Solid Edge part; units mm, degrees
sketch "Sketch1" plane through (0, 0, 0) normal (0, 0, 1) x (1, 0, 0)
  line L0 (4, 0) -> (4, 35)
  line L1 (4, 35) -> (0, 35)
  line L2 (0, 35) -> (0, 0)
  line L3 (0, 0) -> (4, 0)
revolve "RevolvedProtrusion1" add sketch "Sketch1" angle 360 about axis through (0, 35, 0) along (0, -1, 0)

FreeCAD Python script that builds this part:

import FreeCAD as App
import Part
import Sketcher

V = App.Vector


def add_polygon(sketch, points):
    """Adds a closed chain of lines whose ends are joined by coincident constraints."""
    first, n = sketch.GeometryCount, len(points)
    for a, b in zip(points, points[1:] + points[:1]):
        sketch.addGeometry(Part.LineSegment(App.Vector(*a, 0), App.Vector(*b, 0)), False)
    for i in range(n):
        sketch.addConstraint(Sketcher.Constraint("Coincident", first + i, 2, first + (i + 1) % n, 1))

doc = App.newDocument("Part")
body = doc.addObject("PartDesign::Body", "Body")

# Sketch on XY plane
sketch1 = body.newObject("Sketcher::SketchObject", "Sketch")
sketch1.AttachmentSupport = (doc.getObject("XY_Plane"), [""])
sketch1.MapMode = "FlatFace"
add_polygon(sketch1, [(0, 0), (4, 0), (4, 35), (0, 35)])  # lines 0-3
sketch1.addConstraint([
    Sketcher.Constraint("Horizontal", 0),
    Sketcher.Constraint("Vertical", 1),
    Sketcher.Constraint("Horizontal", 2),
    Sketcher.Constraint("Vertical", 3),
    Sketcher.Constraint("Coincident", 3, 2, -1, 1),
    Sketcher.Constraint("DistanceX", 0, 1, 0, 2, 4.0),
    Sketcher.Constraint("DistanceY", 1, 1, 1, 2, 35.0),
])
revolution = body.newObject("PartDesign::Revolution", "Revolution")
revolution.Profile = sketch1
revolution.ReferenceAxis = (sketch1, ["V_Axis"])
revolution.Angle = 360

doc.recompute()
